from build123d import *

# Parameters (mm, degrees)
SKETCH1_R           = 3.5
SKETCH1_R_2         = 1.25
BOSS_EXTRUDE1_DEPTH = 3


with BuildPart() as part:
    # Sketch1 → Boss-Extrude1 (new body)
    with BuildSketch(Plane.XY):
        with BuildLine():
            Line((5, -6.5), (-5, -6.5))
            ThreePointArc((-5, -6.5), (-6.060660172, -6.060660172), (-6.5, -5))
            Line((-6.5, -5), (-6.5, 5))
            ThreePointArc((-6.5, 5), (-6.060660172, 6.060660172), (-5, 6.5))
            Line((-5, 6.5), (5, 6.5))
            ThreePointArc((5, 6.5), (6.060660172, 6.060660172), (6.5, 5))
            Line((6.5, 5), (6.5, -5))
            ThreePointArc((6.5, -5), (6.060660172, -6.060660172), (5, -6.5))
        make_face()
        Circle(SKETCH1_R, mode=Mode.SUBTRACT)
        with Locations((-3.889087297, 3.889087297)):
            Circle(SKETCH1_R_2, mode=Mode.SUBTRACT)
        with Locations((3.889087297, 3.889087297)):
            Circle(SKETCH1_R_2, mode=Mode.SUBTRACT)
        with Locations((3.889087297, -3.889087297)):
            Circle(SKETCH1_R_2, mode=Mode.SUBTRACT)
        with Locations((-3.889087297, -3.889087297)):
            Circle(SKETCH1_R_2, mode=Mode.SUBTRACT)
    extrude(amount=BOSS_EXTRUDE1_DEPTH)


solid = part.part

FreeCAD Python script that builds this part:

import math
import FreeCAD as App
import Part
import Sketcher

V = App.Vector

doc = App.newDocument("Part")
body = doc.addObject("PartDesign::Body", "Body")

# Sketch on XY plane
sketch1 = body.newObject("Sketcher::SketchObject", "Sketch")
sketch1.AttachmentSupport = (doc.getObject("XY_Plane"), [""])
sketch1.MapMode = "FlatFace"
sketch1.addGeometry([
    Part.LineSegment(V(-5, -6.5, 0), V(5, -6.5, 0)),  # 0
    Part.ArcOfCircle(Part.Circle(V(5, -5, 0), V(0, 0, 1), 1.5), math.radians(-90), math.radians(0)),  # 1
    Part.LineSegment(V(6.5, -5, 0), V(6.5, 5, 0)),  # 2
    Part.ArcOfCircle(Part.Circle(V(5, 5, 0), V(0, 0, 1), 1.5), math.radians(0), math.radians(90)),  # 3
    Part.LineSegment(V(5, 6.5, 0), V(-5, 6.5, 0)),  # 4
    Part.ArcOfCircle(Part.Circle(V(-5, 5, 0), V(0, 0, 1), 1.5), math.radians(90), math.radians(180)),  # 5
    Part.LineSegment(V(-6.5, 5, 0), V(-6.5, -5, 0)),  # 6
    Part.ArcOfCircle(Part.Circle(V(-5, -5, 0), V(0, 0, 1), 1.5), math.radians(180), math.radians(270)),  # 7
    Part.Circle(V(3.9, -3.9, 0), V(0, 0, 1), 1.2),  # 8
    Part.Circle(V(-3.9, -3.9, 0), V(0, 0, 1), 1.2),  # 9
    Part.Circle(V(3.9, 3.9, 0), V(0, 0, 1), 1.2),  # 10
    Part.Circle(V(0, 0, 0), V(0, 0, 1), 3.5),  # 11
    Part.Circle(V(-3.9, 3.9, 0), V(0, 0, 1), 1.2),  # 12
], False)
sketch1.addConstraint([
    Sketcher.Constraint("Tangent", 0, 2, 1, 1),
    Sketcher.Constraint("Tangent", 1, 2, 2, 1),
    Sketcher.Constraint("Tangent", 2, 2, 3, 1),
    Sketcher.Constraint("Tangent", 3, 2, 4, 1),
    Sketcher.Constraint("Tangent", 4, 2, 5, 1),
    Sketcher.Constraint("Tangent", 5, 2, 6, 1),
    Sketcher.Constraint("Tangent", 6, 2, 7, 1),
    Sketcher.Constraint("Tangent", 7, 2, 0, 1),
    Sketcher.Constraint("Horizontal", 0),
    Sketcher.Constraint("Vertical", 2),
    Sketcher.Constraint("Horizontal", 4),
    Sketcher.Constraint("Vertical", 6),
    Sketcher.Constraint("Coincident", 11, 3, -1, 1),
    Sketcher.Constraint("Equal", 1, 3),
    Sketcher.Constraint("Equal", 3, 5),
    Sketcher.Constraint("Equal", 5, 7),
    Sketcher.Constraint("Equal", 8, 9),
    Sketcher.Constraint("Equal", 9, 10),
    Sketcher.Constraint("Equal", 10, 12),
    Sketcher.Constraint("Symmetric", 1, 3, 5, 3, -1, 1),
    Sketcher.Constraint("Symmetric", 9, 3, 10, 3, -1, 1),
    Sketcher.Constraint("Symmetric", 8, 3, 12, 3, -1, 1),
    Sketcher.Constraint("Symmetric", 8, 3, 9, 3, -2),
    Sketcher.Constraint("Equal", 4, 2),
    Sketcher.Constraint("Diameter", 11, 7.0),
    Sketcher.Constraint("Diameter", 8, 2.5),
    Sketcher.Constraint("Radius", 1, 1.5),
    Sketcher.Constraint("DistanceX", 0, 1, 0, 2, 10.0),
    Sketcher.Constraint("DistanceX", -1, 1, 8, 3, 3.889087),
    Sketcher.Constraint("DistanceY", 8, 3, -1, 1, 3.889087),
])
pad1 = body.newObject("PartDesign::Pad", "Pad")
pad1.Profile = sketch1
pad1.Length = 3

doc.recompute()
